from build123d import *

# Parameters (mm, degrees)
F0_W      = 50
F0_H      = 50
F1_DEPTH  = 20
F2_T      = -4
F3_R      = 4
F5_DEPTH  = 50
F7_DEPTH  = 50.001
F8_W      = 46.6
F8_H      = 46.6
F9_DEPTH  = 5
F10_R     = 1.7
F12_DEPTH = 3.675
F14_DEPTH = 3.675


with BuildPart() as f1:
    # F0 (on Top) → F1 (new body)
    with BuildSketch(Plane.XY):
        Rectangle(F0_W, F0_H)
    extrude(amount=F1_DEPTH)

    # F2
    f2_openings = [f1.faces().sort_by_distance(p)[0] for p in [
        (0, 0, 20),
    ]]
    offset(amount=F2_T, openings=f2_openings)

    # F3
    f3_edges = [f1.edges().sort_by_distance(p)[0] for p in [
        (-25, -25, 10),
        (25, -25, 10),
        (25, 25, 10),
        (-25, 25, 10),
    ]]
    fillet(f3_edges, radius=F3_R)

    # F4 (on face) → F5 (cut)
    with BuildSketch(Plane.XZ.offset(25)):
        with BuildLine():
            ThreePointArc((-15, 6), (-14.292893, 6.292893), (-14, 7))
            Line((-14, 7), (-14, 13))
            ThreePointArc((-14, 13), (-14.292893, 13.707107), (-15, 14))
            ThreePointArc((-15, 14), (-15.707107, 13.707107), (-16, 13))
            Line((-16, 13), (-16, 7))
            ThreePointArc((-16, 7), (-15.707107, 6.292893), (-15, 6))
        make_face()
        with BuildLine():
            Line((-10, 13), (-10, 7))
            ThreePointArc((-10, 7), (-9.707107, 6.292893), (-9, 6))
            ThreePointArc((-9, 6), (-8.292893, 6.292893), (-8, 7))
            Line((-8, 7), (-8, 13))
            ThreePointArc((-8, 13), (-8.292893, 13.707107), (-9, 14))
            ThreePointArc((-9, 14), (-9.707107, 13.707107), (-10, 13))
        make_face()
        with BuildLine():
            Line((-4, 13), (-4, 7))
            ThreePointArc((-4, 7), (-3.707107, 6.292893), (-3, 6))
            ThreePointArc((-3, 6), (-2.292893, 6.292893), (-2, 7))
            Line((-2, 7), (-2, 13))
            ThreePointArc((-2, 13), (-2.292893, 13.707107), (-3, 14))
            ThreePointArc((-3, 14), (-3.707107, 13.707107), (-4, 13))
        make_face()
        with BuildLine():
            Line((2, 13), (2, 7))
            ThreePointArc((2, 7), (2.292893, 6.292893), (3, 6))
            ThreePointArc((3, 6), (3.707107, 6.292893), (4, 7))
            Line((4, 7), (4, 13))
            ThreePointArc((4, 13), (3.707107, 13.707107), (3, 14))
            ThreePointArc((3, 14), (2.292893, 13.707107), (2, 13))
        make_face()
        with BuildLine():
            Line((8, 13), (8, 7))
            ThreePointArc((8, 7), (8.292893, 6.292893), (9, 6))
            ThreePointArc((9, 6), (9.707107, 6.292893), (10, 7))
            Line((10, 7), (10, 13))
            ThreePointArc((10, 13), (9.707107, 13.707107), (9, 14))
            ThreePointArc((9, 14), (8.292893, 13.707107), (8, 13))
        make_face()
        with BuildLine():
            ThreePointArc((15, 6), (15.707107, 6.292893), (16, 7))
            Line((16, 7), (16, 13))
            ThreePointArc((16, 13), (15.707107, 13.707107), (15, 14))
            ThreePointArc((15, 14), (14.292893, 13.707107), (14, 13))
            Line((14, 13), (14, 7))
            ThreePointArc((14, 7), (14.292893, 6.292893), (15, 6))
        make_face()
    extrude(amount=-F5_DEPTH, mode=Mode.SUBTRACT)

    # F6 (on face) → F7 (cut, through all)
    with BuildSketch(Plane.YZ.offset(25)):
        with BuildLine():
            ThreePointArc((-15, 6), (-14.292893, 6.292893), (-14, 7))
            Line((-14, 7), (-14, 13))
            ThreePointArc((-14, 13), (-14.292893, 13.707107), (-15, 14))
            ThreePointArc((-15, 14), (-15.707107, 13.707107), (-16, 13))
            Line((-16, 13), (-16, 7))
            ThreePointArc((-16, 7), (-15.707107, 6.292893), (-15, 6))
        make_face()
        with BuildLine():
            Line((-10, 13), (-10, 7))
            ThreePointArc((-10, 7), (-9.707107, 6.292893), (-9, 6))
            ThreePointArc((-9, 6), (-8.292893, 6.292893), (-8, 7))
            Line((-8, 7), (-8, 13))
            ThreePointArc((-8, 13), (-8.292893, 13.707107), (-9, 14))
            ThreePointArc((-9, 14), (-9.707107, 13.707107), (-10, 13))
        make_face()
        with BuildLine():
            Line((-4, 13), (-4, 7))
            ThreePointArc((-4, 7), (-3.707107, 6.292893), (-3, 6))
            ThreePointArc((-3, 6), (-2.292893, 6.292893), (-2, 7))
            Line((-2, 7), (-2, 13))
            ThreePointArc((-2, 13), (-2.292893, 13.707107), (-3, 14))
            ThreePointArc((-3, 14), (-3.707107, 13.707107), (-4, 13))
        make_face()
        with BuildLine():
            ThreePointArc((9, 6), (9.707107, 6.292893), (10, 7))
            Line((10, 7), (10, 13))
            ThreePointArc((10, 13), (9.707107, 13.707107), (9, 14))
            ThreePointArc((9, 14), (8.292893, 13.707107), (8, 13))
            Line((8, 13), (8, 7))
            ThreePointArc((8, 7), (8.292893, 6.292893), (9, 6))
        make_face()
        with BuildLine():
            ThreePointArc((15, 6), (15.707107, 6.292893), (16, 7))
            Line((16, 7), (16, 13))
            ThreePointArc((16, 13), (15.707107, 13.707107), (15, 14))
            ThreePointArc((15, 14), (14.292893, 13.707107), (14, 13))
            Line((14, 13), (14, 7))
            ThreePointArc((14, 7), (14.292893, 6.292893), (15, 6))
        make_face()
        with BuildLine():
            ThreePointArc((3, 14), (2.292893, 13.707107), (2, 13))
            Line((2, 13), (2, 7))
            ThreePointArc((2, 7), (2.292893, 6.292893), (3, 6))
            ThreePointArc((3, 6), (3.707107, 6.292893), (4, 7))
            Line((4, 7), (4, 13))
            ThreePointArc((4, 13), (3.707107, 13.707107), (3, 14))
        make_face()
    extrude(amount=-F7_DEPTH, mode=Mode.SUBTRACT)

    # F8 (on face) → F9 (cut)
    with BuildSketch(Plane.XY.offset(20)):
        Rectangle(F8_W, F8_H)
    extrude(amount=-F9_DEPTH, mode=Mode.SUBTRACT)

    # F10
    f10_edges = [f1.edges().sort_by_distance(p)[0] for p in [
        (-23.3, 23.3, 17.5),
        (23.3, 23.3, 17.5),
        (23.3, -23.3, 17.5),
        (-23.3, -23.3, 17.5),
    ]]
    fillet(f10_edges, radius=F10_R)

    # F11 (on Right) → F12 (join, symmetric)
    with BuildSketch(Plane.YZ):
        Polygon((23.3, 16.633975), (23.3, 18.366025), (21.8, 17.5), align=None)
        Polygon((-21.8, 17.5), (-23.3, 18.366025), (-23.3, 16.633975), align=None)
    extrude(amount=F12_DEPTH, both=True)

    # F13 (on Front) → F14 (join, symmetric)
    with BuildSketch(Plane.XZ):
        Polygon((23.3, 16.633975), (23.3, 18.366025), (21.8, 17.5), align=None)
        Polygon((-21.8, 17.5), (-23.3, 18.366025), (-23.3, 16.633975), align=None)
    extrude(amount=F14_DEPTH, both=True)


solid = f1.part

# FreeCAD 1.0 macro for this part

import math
import FreeCAD as App
import Part
import Sketcher

V = App.Vector
Q = App.Units.Quantity


def edges_at(feature, points):
    """Names of the edges that pass closest to the given points."""
    edges = feature.Shape.Edges
    near = lambda p: min(range(len(edges)), key=lambda i: edges[i].distToShape(Part.Vertex(*p))[0])
    return sorted({f"Edge{near(p) + 1}" for p in points})


def faces_at(feature, points):
    """Names of the faces that lie closest to the given points."""
    faces = feature.Shape.Faces
    near = lambda p: min(range(len(faces)), key=lambda i: faces[i].distToShape(Part.Vertex(*p))[0])
    return sorted({f"Face{near(p) + 1}" for p in points})


def add_polygon(sketch, points):
    """Adds a closed chain of lines whose ends are joined by coincident constraints."""
    first, n = sketch.GeometryCount, len(points)
    for a, b in zip(points, points[1:] + points[:1]):
        sketch.addGeometry(Part.LineSegment(App.Vector(*a, 0), App.Vector(*b, 0)), False)
    for i in range(n):
        sketch.addConstraint(Sketcher.Constraint("Coincident", first + i, 2, first + (i + 1) % n, 1))

doc = App.newDocument("Part")
params = doc.addObject("Spreadsheet::Sheet", "Params")
for row, (alias, value) in enumerate([
    ("sketch1_width", "50 mm"),
    ("pad1_length", "20 mm"),
    ("thickness_wall", "4 mm"),
    ("fillet_radius", "4 mm"),
    ("sketch2_radius", "0.999999 mm"),
    ("sketch2_height", "6 mm"),
    ("pocket1_length", "50 mm"),
    ("sketch3_radius", "0.999999 mm"),
    ("sketch3_height", "6 mm"),
    ("sketch4_width", "46.6 mm"),
    ("pocket3_length", "5 mm"),
    ("fillet2_radius", "1.7 mm"),
    ("pad2_length", "7.35 mm"),
    ("pad3_length", "7.35 mm"),
], start=1):
    params.set(f"A{row}", alias)
    params.set(f"B{row}", "=" + value)
    params.setAlias(f"B{row}", alias)

body = doc.addObject("PartDesign::Body", "Body")

sketch1 = body.newObject("Sketcher::SketchObject", "Sketch")
sketch1.AttachmentSupport = (doc.getObject("XY_Plane"), [""])
sketch1.MapMode = "FlatFace"
add_polygon(sketch1, [(-25, 25), (-25, -25), (25, -25), (25, 25)])
sketch1.addConstraint(Sketcher.Constraint("Vertical", 0))
sketch1.addConstraint(Sketcher.Constraint("Horizontal", 1))
sketch1.addConstraint(Sketcher.Constraint("Vertical", 2))
sketch1.addConstraint(Sketcher.Constraint("Horizontal", 3))
sketch1.addConstraint(Sketcher.Constraint("Symmetric", 0, 2, 2, 2, -1, 1))
sketch1.addConstraint(Sketcher.Constraint("Equal", 3, 0))
sketch1.addConstraint(Sketcher.Constraint("DistanceX", 1, 1, 1, 2, Q("50 mm")))
sketch1.setExpression("Constraints[10]", "Params.sketch1_width")
pad1 = body.newObject("PartDesign::Pad", "Pad")
pad1.Profile = sketch1
pad1.setExpression("Length", "Params.pad1_length")
doc.recompute()

thickness = body.newObject("PartDesign::Thickness", "Thickness")
thickness.Base = (pad1, faces_at(pad1, [(0, 0, 20)]))
thickness.setExpression("Value", "Params.thickness_wall")
thickness.Reversed = True
thickness.Join = "Arc"
doc.recompute()

fillet = body.newObject("PartDesign::Fillet", "Fillet")
fillet.Base = (thickness, edges_at(thickness, [
    (-25, -25, 10),
    (25, -25, 10),
    (25, 25, 10),
    (-25, 25, 10),
]))
fillet.setExpression("Radius", "Params.fillet_radius")

sketch2 = body.newObject("Sketcher::SketchObject", "Sketch001")
sketch2.AttachmentSupport = (doc.getObject("XZ_Plane"), [""])
sketch2.MapMode = "FlatFace"
sketch2.AttachmentOffset = App.Placement(V(0, 0, 25), App.Rotation())
sketch2.addGeometry(Part.ArcOfCircle(Part.Circle(V(-15, 7, 0), V(0, 0, 1), 1), math.radians(-90), math.radians(0)), False)
sketch2.addGeometry(Part.LineSegment(V(-14, 7, 0), V(-14, 13, 0)), False)
sketch2.addGeometry(Part.ArcOfCircle(Part.Circle(V(-15, 13, 0), V(0, 0, 1), 1), math.radians(0), math.radians(90)), False)
sketch2.addGeometry(Part.ArcOfCircle(Part.Circle(V(-15, 13, 0), V(0, 0, 1), 1), math.radians(90), math.radians(180)), False)
sketch2.addGeometry(Part.LineSegment(V(-16, 13, 0), V(-16, 7, 0)), False)
sketch2.addGeometry(Part.ArcOfCircle(Part.Circle(V(-15, 7, 0), V(0, 0, 1), 1), math.radians(180), math.radians(270)), False)
sketch2.addGeometry(Part.LineSegment(V(-10, 13, 0), V(-10, 7, 0)), False)
sketch2.addGeometry(Part.ArcOfCircle(Part.Circle(V(-9, 7, 0), V(0, 0, 1), 1), math.radians(180), math.radians(270)), False)
sketch2.addGeometry(Part.ArcOfCircle(Part.Circle(V(-9, 7, 0), V(0, 0, 1), 1), math.radians(-90), math.radians(0)), False)
sketch2.addGeometry(Part.LineSegment(V(-8, 7, 0), V(-8, 13, 0)), False)
sketch2.addGeometry(Part.ArcOfCircle(Part.Circle(V(-9, 13, 0), V(0, 0, 1), 1), math.radians(0), math.radians(90)), False)
sketch2.addGeometry(Part.ArcOfCircle(Part.Circle(V(-9, 13, 0), V(0, 0, 1), 1), math.radians(90), math.radians(180)), False)
sketch2.addGeometry(Part.LineSegment(V(-4, 13, 0), V(-4, 7, 0)), False)
sketch2.addGeometry(Part.ArcOfCircle(Part.Circle(V(-3, 7, 0), V(0, 0, 1), 1), math.radians(180), math.radians(270)), False)
sketch2.addGeometry(Part.ArcOfCircle(Part.Circle(V(-3, 7, 0), V(0, 0, 1), 1), math.radians(-90), math.radians(0)), False)
sketch2.addGeometry(Part.LineSegment(V(-2, 7, 0), V(-2, 13, 0)), False)
sketch2.addGeometry(Part.ArcOfCircle(Part.Circle(V(-3, 13, 0), V(0, 0, 1), 1), math.radians(0), math.radians(90)), False)
sketch2.addGeometry(Part.ArcOfCircle(Part.Circle(V(-3, 13, 0), V(0, 0, 1), 1), math.radians(90), math.radians(180)), False)
sketch2.addGeometry(Part.LineSegment(V(2, 13, 0), V(2, 7, 0)), False)
sketch2.addGeometry(Part.ArcOfCircle(Part.Circle(V(3, 7, 0), V(0, 0, 1), 1), math.radians(180), math.radians(270)), False)
sketch2.addGeometry(Part.ArcOfCircle(Part.Circle(V(3, 7, 0), V(0, 0, 1), 1), math.radians(-90), math.radians(0)), False)
sketch2.addGeometry(Part.LineSegment(V(4, 7, 0), V(4, 13, 0)), False)
sketch2.addGeometry(Part.ArcOfCircle(Part.Circle(V(3, 13, 0), V(0, 0, 1), 1), math.radians(0), math.radians(90)), False)
sketch2.addGeometry(Part.ArcOfCircle(Part.Circle(V(3, 13, 0), V(0, 0, 1), 1), math.radians(90), math.radians(180)), False)
sketch2.addGeometry(Part.LineSegment(V(8, 13, 0), V(8, 7, 0)), False)
sketch2.addGeometry(Part.ArcOfCircle(Part.Circle(V(9, 7, 0), V(0, 0, 1), 1), math.radians(180), math.radians(270)), False)
sketch2.addGeometry(Part.ArcOfCircle(Part.Circle(V(9, 7, 0), V(0, 0, 1), 1), math.radians(-90), math.radians(0)), False)
sketch2.addGeometry(Part.LineSegment(V(10, 7, 0), V(10, 13, 0)), False)
sketch2.addGeometry(Part.ArcOfCircle(Part.Circle(V(9, 13, 0), V(0, 0, 1), 1), math.radians(0), math.radians(90)), False)
sketch2.addGeometry(Part.ArcOfCircle(Part.Circle(V(9, 13, 0), V(0, 0, 1), 1), math.radians(90), math.radians(180)), False)
sketch2.addGeometry(Part.ArcOfCircle(Part.Circle(V(15, 7, 0), V(0, 0, 1), 1), math.radians(-90), math.radians(0)), False)
sketch2.addGeometry(Part.LineSegment(V(16, 7, 0), V(16, 13, 0)), False)
sketch2.addGeometry(Part.ArcOfCircle(Part.Circle(V(15, 13, 0), V(0, 0, 1), 1), math.radians(0), math.radians(90)), False)
sketch2.addGeometry(Part.ArcOfCircle(Part.Circle(V(15, 13, 0), V(0, 0, 1), 1), math.radians(90), math.radians(180)), False)
sketch2.addGeometry(Part.LineSegment(V(14, 13, 0), V(14, 7, 0)), False)
sketch2.addGeometry(Part.ArcOfCircle(Part.Circle(V(15, 7, 0), V(0, 0, 1), 1), math.radians(180), math.radians(270)), False)
sketch2.addConstraint(Sketcher.Constraint("Tangent", 0, 2, 1, 1))
sketch2.addConstraint(Sketcher.Constraint("Tangent", 1, 2, 2, 1))
sketch2.addConstraint(Sketcher.Constraint("Tangent", 2, 2, 3, 1))
sketch2.addConstraint(Sketcher.Constraint("Tangent", 3, 2, 4, 1))
sketch2.addConstraint(Sketcher.Constraint("Tangent", 4, 2, 5, 1))
sketch2.addConstraint(Sketcher.Constraint("Tangent", 5, 2, 0, 1))
sketch2.addConstraint(Sketcher.Constraint("Tangent", 6, 2, 7, 1))
sketch2.addConstraint(Sketcher.Constraint("Tangent", 7, 2, 8, 1))
sketch2.addConstraint(Sketcher.Constraint("Tangent", 8, 2, 9, 1))
sketch2.addConstraint(Sketcher.Constraint("Tangent", 9, 2, 10, 1))
sketch2.addConstraint(Sketcher.Constraint("Tangent", 10, 2, 11, 1))
sketch2.addConstraint(Sketcher.Constraint("Tangent", 11, 2, 6, 1))
sketch2.addConstraint(Sketcher.Constraint("Tangent", 12, 2, 13, 1))
sketch2.addConstraint(Sketcher.Constraint("Tangent", 13, 2, 14, 1))
sketch2.addConstraint(Sketcher.Constraint("Tangent", 14, 2, 15, 1))
sketch2.addConstraint(Sketcher.Constraint("Tangent", 15, 2, 16, 1))
sketch2.addConstraint(Sketcher.Constraint("Tangent", 16, 2, 17, 1))
sketch2.addConstraint(Sketcher.Constraint("Tangent", 17, 2, 12, 1))
sketch2.addConstraint(Sketcher.Constraint("Tangent", 18, 2, 19, 1))
sketch2.addConstraint(Sketcher.Constraint("Tangent", 19, 2, 20, 1))
sketch2.addConstraint(Sketcher.Constraint("Tangent", 20, 2, 21, 1))
sketch2.addConstraint(Sketcher.Constraint("Tangent", 21, 2, 22, 1))
sketch2.addConstraint(Sketcher.Constraint("Tangent", 22, 2, 23, 1))
sketch2.addConstraint(Sketcher.Constraint("Tangent", 23, 2, 18, 1))
sketch2.addConstraint(Sketcher.Constraint("Tangent", 24, 2, 25, 1))
sketch2.addConstraint(Sketcher.Constraint("Tangent", 25, 2, 26, 1))
sketch2.addConstraint(Sketcher.Constraint("Tangent", 26, 2, 27, 1))
sketch2.addConstraint(Sketcher.Constraint("Tangent", 27, 2, 28, 1))
sketch2.addConstraint(Sketcher.Constraint("Tangent", 28, 2, 29, 1))
sketch2.addConstraint(Sketcher.Constraint("Tangent", 29, 2, 24, 1))
sketch2.addConstraint(Sketcher.Constraint("Tangent", 30, 2, 31, 1))
sketch2.addConstraint(Sketcher.Constraint("Tangent", 31, 2, 32, 1))
sketch2.addConstraint(Sketcher.Constraint("Tangent", 32, 2, 33, 1))
sketch2.addConstraint(Sketcher.Constraint("Tangent", 33, 2, 34, 1))
sketch2.addConstraint(Sketcher.Constraint("Tangent", 34, 2, 35, 1))
sketch2.addConstraint(Sketcher.Constraint("Tangent", 35, 2, 30, 1))
sketch2.addConstraint(Sketcher.Constraint("Vertical", 1))
sketch2.addConstraint(Sketcher.Constraint("Vertical", 4))
sketch2.addConstraint(Sketcher.Constraint("Vertical", 6))
sketch2.addConstraint(Sketcher.Constraint("Vertical", 9))
sketch2.addConstraint(Sketcher.Constraint("Vertical", 12))
sketch2.addConstraint(Sketcher.Constraint("Vertical", 15))
sketch2.addConstraint(Sketcher.Constraint("Vertical", 18))
sketch2.addConstraint(Sketcher.Constraint("Vertical", 21))
sketch2.addConstraint(Sketcher.Constraint("Vertical", 24))
sketch2.addConstraint(Sketcher.Constraint("Vertical", 27))
sketch2.addConstraint(Sketcher.Constraint("Vertical", 31))
sketch2.addConstraint(Sketcher.Constraint("Vertical", 34))
sketch2.addConstraint(Sketcher.Constraint("Equal", 0, 2))
sketch2.addConstraint(Sketcher.Constraint("Equal", 2, 3))
sketch2.addConstraint(Sketcher.Constraint("Equal", 5, 7))
sketch2.addConstraint(Sketcher.Constraint("Equal", 7, 8))
sketch2.addConstraint(Sketcher.Constraint("Equal", 8, 10))
sketch2.addConstraint(Sketcher.Constraint("Equal", 11, 13))
sketch2.addConstraint(Sketcher.Constraint("Equal", 13, 14))
sketch2.addConstraint(Sketcher.Constraint("Equal", 14, 16))
sketch2.addConstraint(Sketcher.Constraint("Equal", 17, 19))
sketch2.addConstraint(Sketcher.Constraint("Equal", 19, 20))
sketch2.addConstraint(Sketcher.Constraint("Equal", 20, 22))
sketch2.addConstraint(Sketcher.Constraint("Equal", 23, 25))
sketch2.addConstraint(Sketcher.Constraint("Equal", 25, 26))
sketch2.addConstraint(Sketcher.Constraint("Equal", 26, 28))
sketch2.addConstraint(Sketcher.Constraint("Equal", 29, 30))
sketch2.addConstraint(Sketcher.Constraint("Equal", 30, 32))
sketch2.addConstraint(Sketcher.Constraint("Equal", 32, 33))
sketch2.addConstraint(Sketcher.Constraint("Symmetric", 13, 3, 19, 3, -2))
sketch2.addConstraint(Sketcher.Constraint("Symmetric", 7, 3, 25, 3, -2))
sketch2.addConstraint(Sketcher.Constraint("Symmetric", 0, 3, 30, 3, -2))
sketch2.addConstraint(Sketcher.Constraint("Symmetric", 16, 2, 22, 2, -2))
sketch2.addConstraint(Sketcher.Constraint("Symmetric", 10, 2, 28, 2, -2))
sketch2.addConstraint(Sketcher.Constraint("Symmetric", 2, 2, 32, 2, -2))
sketch2.addConstraint(Sketcher.Constraint("Horizontal", 5, 3, 7, 3))
sketch2.addConstraint(Sketcher.Constraint("Horizontal", 3, 3, 10, 3))
sketch2.addConstraint(Sketcher.Constraint("Horizontal", 8, 3, 13, 3))
sketch2.addConstraint(Sketcher.Constraint("Horizontal", 11, 3, 16, 3))
sketch2.addConstraint(Sketcher.Constraint("Vertical", 5, 3, 2, 2))
sketch2.addConstraint(Sketcher.Constraint("Vertical", 2, 2, 5, 2))
sketch2.addConstraint(Sketcher.Constraint("Vertical", 11, 3, 7, 2))
sketch2.addConstraint(Sketcher.Constraint("Vertical", 7, 2, 10, 2))
sketch2.addConstraint(Sketcher.Constraint("Vertical", 17, 3, 13, 2))
sketch2.addConstraint(Sketcher.Constraint("Vertical", 13, 2, 16, 2))
sketch2.addConstraint(Sketcher.Constraint("Vertical", 23, 3, 19, 2))
sketch2.addConstraint(Sketcher.Constraint("Vertical", 29, 3, 25, 2))
sketch2.addConstraint(Sketcher.Constraint("Vertical", 32, 2, 35, 2))
sketch2.addConstraint(Sketcher.Constraint("Radius", 0, Q("0.999999 mm")))
sketch2.addConstraint(Sketcher.Constraint("DistanceY", 1, 1, 1, 2, Q("6 mm")))
sketch2.addConstraint(Sketcher.Constraint("DistanceX", 0, 3, -1, 1, Q("14.999999 mm")))
sketch2.addConstraint(Sketcher.Constraint("DistanceY", -1, 1, 0, 3, Q("6.999999 mm")))
sketch2.addConstraint(Sketcher.Constraint("DistanceX", 7, 3, -1, 1, Q("9.000001 mm")))
sketch2.addConstraint(Sketcher.Constraint("DistanceX", 13, 3, -1, 1, Q("3.000001 mm")))
sketch2.setExpression("Constraints[84]", "Params.sketch2_radius")
sketch2.setExpression("Constraints[85]", "Params.sketch2_height")
pocket1 = body.newObject("PartDesign::Pocket", "Pocket")
pocket1.Profile = sketch2
pocket1.setExpression("Length", "Params.pocket1_length")

sketch3 = body.newObject("Sketcher::SketchObject", "Sketch002")
sketch3.AttachmentSupport = (doc.getObject("YZ_Plane"), [""])
sketch3.MapMode = "FlatFace"
sketch3.AttachmentOffset = App.Placement(V(0, 0, 25), App.Rotation())
sketch3.addGeometry(Part.ArcOfCircle(Part.Circle(V(-15, 7, 0), V(0, 0, 1), 1), math.radians(-90), math.radians(0)), False)
sketch3.addGeometry(Part.LineSegment(V(-14, 7, 0), V(-14, 13, 0)), False)
sketch3.addGeometry(Part.ArcOfCircle(Part.Circle(V(-15, 13, 0), V(0, 0, 1), 1), math.radians(0), math.radians(90)), False)
sketch3.addGeometry(Part.ArcOfCircle(Part.Circle(V(-15, 13, 0), V(0, 0, 1), 1), math.radians(90), math.radians(180)), False)
sketch3.addGeometry(Part.LineSegment(V(-16, 13, 0), V(-16, 7, 0)), False)
sketch3.addGeometry(Part.ArcOfCircle(Part.Circle(V(-15, 7, 0), V(0, 0, 1), 1), math.radians(180), math.radians(270)), False)
sketch3.addGeometry(Part.LineSegment(V(-10, 13, 0), V(-10, 7, 0)), False)
sketch3.addGeometry(Part.ArcOfCircle(Part.Circle(V(-9, 7, 0), V(0, 0, 1), 1), math.radians(180), math.radians(270)), False)
sketch3.addGeometry(Part.ArcOfCircle(Part.Circle(V(-9, 7, 0), V(0, 0, 1), 1), math.radians(-90), math.radians(0)), False)
sketch3.addGeometry(Part.LineSegment(V(-8, 7, 0), V(-8, 13, 0)), False)
sketch3.addGeometry(Part.ArcOfCircle(Part.Circle(V(-9, 13, 0), V(0, 0, 1), 1), math.radians(0), math.radians(90)), False)
sketch3.addGeometry(Part.ArcOfCircle(Part.Circle(V(-9, 13, 0), V(0, 0, 1), 1), math.radians(90), math.radians(180)), False)
sketch3.addGeometry(Part.LineSegment(V(-4, 13, 0), V(-4, 7, 0)), False)
sketch3.addGeometry(Part.ArcOfCircle(Part.Circle(V(-3, 7, 0), V(0, 0, 1), 1), math.radians(180), math.radians(270)), False)
sketch3.addGeometry(Part.ArcOfCircle(Part.Circle(V(-3, 7, 0), V(0, 0, 1), 1), math.radians(-90), math.radians(0)), False)
sketch3.addGeometry(Part.LineSegment(V(-2, 7, 0), V(-2, 13, 0)), False)
sketch3.addGeometry(Part.ArcOfCircle(Part.Circle(V(-3, 13, 0), V(0, 0, 1), 1), math.radians(0), math.radians(90)), False)
sketch3.addGeometry(Part.ArcOfCircle(Part.Circle(V(-3, 13, 0), V(0, 0, 1), 1), math.radians(90), math.radians(180)), False)
sketch3.addGeometry(Part.ArcOfCircle(Part.Circle(V(9, 7, 0), V(0, 0, 1), 1), math.radians(-90), math.radians(0)), False)
sketch3.addGeometry(Part.LineSegment(V(10, 7, 0), V(10, 13, 0)), False)
sketch3.addGeometry(Part.ArcOfCircle(Part.Circle(V(9, 13, 0), V(0, 0, 1), 1), math.radians(0), math.radians(90)), False)
sketch3.addGeometry(Part.ArcOfCircle(Part.Circle(V(9, 13, 0), V(0, 0, 1), 1), math.radians(90), math.radians(180)), False)
sketch3.addGeometry(Part.LineSegment(V(8, 13, 0), V(8, 7, 0)), False)
sketch3.addGeometry(Part.ArcOfCircle(Part.Circle(V(9, 7, 0), V(0, 0, 1), 1), math.radians(180), math.radians(270)), False)
sketch3.addGeometry(Part.ArcOfCircle(Part.Circle(V(15, 7, 0), V(0, 0, 1), 1), math.radians(-90), math.radians(0)), False)
sketch3.addGeometry(Part.LineSegment(V(16, 7, 0), V(16, 13, 0)), False)
sketch3.addGeometry(Part.ArcOfCircle(Part.Circle(V(15, 13, 0), V(0, 0, 1), 1), math.radians(0), math.radians(90)), False)
sketch3.addGeometry(Part.ArcOfCircle(Part.Circle(V(15, 13, 0), V(0, 0, 1), 1), math.radians(90), math.radians(180)), False)
sketch3.addGeometry(Part.LineSegment(V(14, 13, 0), V(14, 7, 0)), False)
sketch3.addGeometry(Part.ArcOfCircle(Part.Circle(V(15, 7, 0), V(0, 0, 1), 1), math.radians(180), math.radians(270)), False)
sketch3.addGeometry(Part.ArcOfCircle(Part.Circle(V(3, 13, 0), V(0, 0, 1), 1), math.radians(90), math.radians(180)), False)
sketch3.addGeometry(Part.LineSegment(V(2, 13, 0), V(2, 7, 0)), False)
sketch3.addGeometry(Part.ArcOfCircle(Part.Circle(V(3, 7, 0), V(0, 0, 1), 1), math.radians(180), math.radians(270)), False)
sketch3.addGeometry(Part.ArcOfCircle(Part.Circle(V(3, 7, 0), V(0, 0, 1), 1), math.radians(-90), math.radians(0)), False)
sketch3.addGeometry(Part.LineSegment(V(4, 7, 0), V(4, 13, 0)), False)
sketch3.addGeometry(Part.ArcOfCircle(Part.Circle(V(3, 13, 0), V(0, 0, 1), 1), math.radians(0), math.radians(90)), False)
sketch3.addConstraint(Sketcher.Constraint("Tangent", 0, 2, 1, 1))
sketch3.addConstraint(Sketcher.Constraint("Tangent", 1, 2, 2, 1))
sketch3.addConstraint(Sketcher.Constraint("Tangent", 2, 2, 3, 1))
sketch3.addConstraint(Sketcher.Constraint("Tangent", 3, 2, 4, 1))
sketch3.addConstraint(Sketcher.Constraint("Tangent", 4, 2, 5, 1))
sketch3.addConstraint(Sketcher.Constraint("Tangent", 5, 2, 0, 1))
sketch3.addConstraint(Sketcher.Constraint("Tangent", 6, 2, 7, 1))
sketch3.addConstraint(Sketcher.Constraint("Tangent", 7, 2, 8, 1))
sketch3.addConstraint(Sketcher.Constraint("Tangent", 8, 2, 9, 1))
sketch3.addConstraint(Sketcher.Constraint("Tangent", 9, 2, 10, 1))
sketch3.addConstraint(Sketcher.Constraint("Tangent", 10, 2, 11, 1))
sketch3.addConstraint(Sketcher.Constraint("Tangent", 11, 2, 6, 1))
sketch3.addConstraint(Sketcher.Constraint("Tangent", 12, 2, 13, 1))
sketch3.addConstraint(Sketcher.Constraint("Tangent", 13, 2, 14, 1))
sketch3.addConstraint(Sketcher.Constraint("Tangent", 14, 2, 15, 1))
sketch3.addConstraint(Sketcher.Constraint("Tangent", 15, 2, 16, 1))
sketch3.addConstraint(Sketcher.Constraint("Tangent", 16, 2, 17, 1))
sketch3.addConstraint(Sketcher.Constraint("Tangent", 17, 2, 12, 1))
sketch3.addConstraint(Sketcher.Constraint("Tangent", 18, 2, 19, 1))
sketch3.addConstraint(Sketcher.Constraint("Tangent", 19, 2, 20, 1))
sketch3.addConstraint(Sketcher.Constraint("Tangent", 20, 2, 21, 1))
sketch3.addConstraint(Sketcher.Constraint("Tangent", 21, 2, 22, 1))
sketch3.addConstraint(Sketcher.Constraint("Tangent", 22, 2, 23, 1))
sketch3.addConstraint(Sketcher.Constraint("Tangent", 23, 2, 18, 1))
sketch3.addConstraint(Sketcher.Constraint("Tangent", 24, 2, 25, 1))
sketch3.addConstraint(Sketcher.Constraint("Tangent", 25, 2, 26, 1))
sketch3.addConstraint(Sketcher.Constraint("Tangent", 26, 2, 27, 1))
sketch3.addConstraint(Sketcher.Constraint("Tangent", 27, 2, 28, 1))
sketch3.addConstraint(Sketcher.Constraint("Tangent", 28, 2, 29, 1))
sketch3.addConstraint(Sketcher.Constraint("Tangent", 29, 2, 24, 1))
sketch3.addConstraint(Sketcher.Constraint("Tangent", 30, 2, 31, 1))
sketch3.addConstraint(Sketcher.Constraint("Tangent", 31, 2, 32, 1))
sketch3.addConstraint(Sketcher.Constraint("Tangent", 32, 2, 33, 1))
sketch3.addConstraint(Sketcher.Constraint("Tangent", 33, 2, 34, 1))
sketch3.addConstraint(Sketcher.Constraint("Tangent", 34, 2, 35, 1))
sketch3.addConstraint(Sketcher.Constraint("Tangent", 35, 2, 30, 1))
sketch3.addConstraint(Sketcher.Constraint("Vertical", 1))
sketch3.addConstraint(Sketcher.Constraint("Vertical", 4))
sketch3.addConstraint(Sketcher.Constraint("Vertical", 6))
sketch3.addConstraint(Sketcher.Constraint("Vertical", 9))
sketch3.addConstraint(Sketcher.Constraint("Vertical", 12))
sketch3.addConstraint(Sketcher.Constraint("Vertical", 15))
sketch3.addConstraint(Sketcher.Constraint("Vertical", 19))
sketch3.addConstraint(Sketcher.Constraint("Vertical", 22))
sketch3.addConstraint(Sketcher.Constraint("Vertical", 25))
sketch3.addConstraint(Sketcher.Constraint("Vertical", 28))
sketch3.addConstraint(Sketcher.Constraint("Vertical", 31))
sketch3.addConstraint(Sketcher.Constraint("Vertical", 34))
sketch3.addConstraint(Sketcher.Constraint("Equal", 0, 2))
sketch3.addConstraint(Sketcher.Constraint("Equal", 2, 3))
sketch3.addConstraint(Sketcher.Constraint("Equal", 5, 7))
sketch3.addConstraint(Sketcher.Constraint("Equal", 7, 8))
sketch3.addConstraint(Sketcher.Constraint("Equal", 8, 10))
sketch3.addConstraint(Sketcher.Constraint("Equal", 11, 13))
sketch3.addConstraint(Sketcher.Constraint("Equal", 13, 14))
sketch3.addConstraint(Sketcher.Constraint("Equal", 14, 16))
sketch3.addConstraint(Sketcher.Constraint("Equal", 17, 18))
sketch3.addConstraint(Sketcher.Constraint("Equal", 18, 20))
sketch3.addConstraint(Sketcher.Constraint("Equal", 20, 21))
sketch3.addConstraint(Sketcher.Constraint("Equal", 23, 24))
sketch3.addConstraint(Sketcher.Constraint("Equal", 24, 26))
sketch3.addConstraint(Sketcher.Constraint("Equal", 26, 27))
sketch3.addConstraint(Sketcher.Constraint("Equal", 29, 30))
sketch3.addConstraint(Sketcher.Constraint("Equal", 30, 32))
sketch3.addConstraint(Sketcher.Constraint("Equal", 32, 33))
sketch3.addConstraint(Sketcher.Constraint("Symmetric", 7, 3, 18, 3, -2))
sketch3.addConstraint(Sketcher.Constraint("Symmetric", 0, 3, 24, 3, -2))
sketch3.addConstraint(Sketcher.Constraint("Symmetric", 16, 3, 30, 3, -2))
sketch3.addConstraint(Sketcher.Constraint("Symmetric", 10, 2, 20, 2, -2))
sketch3.addConstraint(Sketcher.Constraint("Symmetric", 2, 2, 26, 2, -2))
sketch3.addConstraint(Sketcher.Constraint("Symmetric", 13, 2, 32, 2, -2))
sketch3.addConstraint(Sketcher.Constraint("Horizontal", 5, 3, 7, 3))
sketch3.addConstraint(Sketcher.Constraint("Horizontal", 3, 3, 10, 3))
sketch3.addConstraint(Sketcher.Constraint("Horizontal", 8, 3, 13, 3))
sketch3.addConstraint(Sketcher.Constraint("Horizontal", 11, 3, 16, 3))
sketch3.addConstraint(Sketcher.Constraint("Vertical", 5, 3, 2, 2))
sketch3.addConstraint(Sketcher.Constraint("Vertical", 2, 2, 5, 2))
sketch3.addConstraint(Sketcher.Constraint("Vertical", 11, 3, 7, 2))
sketch3.addConstraint(Sketcher.Constraint("Vertical", 7, 2, 10, 2))
sketch3.addConstraint(Sketcher.Constraint("Vertical", 17, 3, 13, 2))
sketch3.addConstraint(Sketcher.Constraint("Vertical", 13, 2, 16, 2))
sketch3.addConstraint(Sketcher.Constraint("Vertical", 20, 2, 23, 2))
sketch3.addConstraint(Sketcher.Constraint("Vertical", 26, 2, 29, 2))
sketch3.addConstraint(Sketcher.Constraint("Vertical", 32, 2, 35, 2))
sketch3.addConstraint(Sketcher.Constraint("Radius", 0, Q("0.999999 mm")))
sketch3.addConstraint(Sketcher.Constraint("DistanceY", 1, 1, 1, 2, Q("6 mm")))
sketch3.addConstraint(Sketcher.Constraint("DistanceX", 0, 3, -1, 1, Q("14.999999 mm")))
sketch3.addConstraint(Sketcher.Constraint("DistanceY", -1, 1, 0, 3, Q("6.999999 mm")))
sketch3.addConstraint(Sketcher.Constraint("DistanceX", 7, 3, -1, 1, Q("9.000001 mm")))
sketch3.addConstraint(Sketcher.Constraint("DistanceX", 13, 3, -1, 1, Q("3.000001 mm")))
sketch3.setExpression("Constraints[84]", "Params.sketch3_radius")
sketch3.setExpression("Constraints[85]", "Params.sketch3_height")
pocket2 = body.newObject("PartDesign::Pocket", "Pocket001")
pocket2.Profile = sketch3
pocket2.Type = "ThroughAll"

sketch4 = body.newObject("Sketcher::SketchObject", "Sketch003")
sketch4.AttachmentSupport = (doc.getObject("XY_Plane"), [""])
sketch4.MapMode = "FlatFace"
sketch4.AttachmentOffset = App.Placement(V(0, 0, 20), App.Rotation())
add_polygon(sketch4, [(-23, 23), (-23, -23), (23, -23), (23, 23)])
sketch4.addConstraint(Sketcher.Constraint("Vertical", 0))
sketch4.addConstraint(Sketcher.Constraint("Horizontal", 1))
sketch4.addConstraint(Sketcher.Constraint("Vertical", 2))
sketch4.addConstraint(Sketcher.Constraint("Horizontal", 3))
sketch4.addConstraint(Sketcher.Constraint("Symmetric", 0, 2, 2, 2, -1, 1))
sketch4.addConstraint(Sketcher.Constraint("Equal", 3, 0))
sketch4.addConstraint(Sketcher.Constraint("DistanceX", 1, 1, 1, 2, Q("46.6 mm")))
sketch4.setExpression("Constraints[10]", "Params.sketch4_width")
pocket3 = body.newObject("PartDesign::Pocket", "Pocket002")
pocket3.Profile = sketch4
pocket3.setExpression("Length", "Params.pocket3_length")
doc.recompute()

fillet2 = body.newObject("PartDesign::Fillet", "Fillet001")
fillet2.Base = (pocket3, edges_at(pocket3, [
    (-23.3, 23.3, 17.5),
    (23.3, 23.3, 17.5),
    (23.3, -23.3, 17.5),
    (-23.3, -23.3, 17.5),
]))
fillet2.setExpression("Radius", "Params.fillet2_radius")

sketch5 = body.newObject("Sketcher::SketchObject", "Sketch004")
sketch5.AttachmentSupport = (doc.getObject("YZ_Plane"), [""])
sketch5.MapMode = "FlatFace"
add_polygon(sketch5, [(23.3, 16.6), (23.3, 18.4), (21.8, 17.5)])
add_polygon(sketch5, [(-21.8, 17.5), (-23.3, 18.4), (-23.3, 16.6)])
sketch5.addConstraint(Sketcher.Constraint("Vertical", 0))
sketch5.addConstraint(Sketcher.Constraint("Vertical", 4))
sketch5.addConstraint(Sketcher.Constraint("Symmetric", 0, 2, 3, 2, -2))
sketch5.addConstraint(Sketcher.Constraint("Symmetric", 1, 2, 5, 2, -2))
sketch5.addConstraint(Sketcher.Constraint("Parallel", 2, 3))
sketch5.addConstraint(Sketcher.Constraint("Parallel", 1, 5))
sketch5.addConstraint(Sketcher.Constraint("Angle", 1, Q("-150.000012 deg")))
sketch5.addConstraint(Sketcher.Constraint("DistanceX", -1, 1, 0, 2, Q("23.3 mm")))
sketch5.addConstraint(Sketcher.Constraint("DistanceX", -1, 1, 1, 2, Q("21.8 mm")))
sketch5.addConstraint(Sketcher.Constraint("DistanceY", -1, 1, 1, 2, Q("17.5 mm")))
pad2 = body.newObject("PartDesign::Pad", "Pad001")
pad2.Profile = sketch5
pad2.setExpression("Length", "Params.pad2_length")
pad2.Midplane = True

sketch6 = body.newObject("Sketcher::SketchObject", "Sketch005")
sketch6.AttachmentSupport = (doc.getObject("XZ_Plane"), [""])
sketch6.MapMode = "FlatFace"
add_polygon(sketch6, [(23.3, 16.6), (23.3, 18.4), (21.8, 17.5)])
add_polygon(sketch6, [(-21.8, 17.5), (-23.3, 18.4), (-23.3, 16.6)])
sketch6.addConstraint(Sketcher.Constraint("Vertical", 0))
sketch6.addConstraint(Sketcher.Constraint("Vertical", 4))
sketch6.addConstraint(Sketcher.Constraint("Symmetric", 0, 2, 3, 2, -2))
sketch6.addConstraint(Sketcher.Constraint("Symmetric", 1, 2, 5, 2, -2))
sketch6.addConstraint(Sketcher.Constraint("Parallel", 2, 3))
sketch6.addConstraint(Sketcher.Constraint("Parallel", 1, 5))
sketch6.addConstraint(Sketcher.Constraint("Angle", 1, Q("-150.000012 deg")))
sketch6.addConstraint(Sketcher.Constraint("DistanceX", -1, 1, 0, 2, Q("23.3 mm")))
sketch6.addConstraint(Sketcher.Constraint("DistanceX", -1, 1, 1, 2, Q("21.8 mm")))
sketch6.addConstraint(Sketcher.Constraint("DistanceY", -1, 1, 1, 2, Q("17.5 mm")))
pad3 = body.newObject("PartDesign::Pad", "Pad002")
pad3.Profile = sketch6
pad3.setExpression("Length", "Params.pad3_length")
pad3.Midplane = True

doc.recompute()
